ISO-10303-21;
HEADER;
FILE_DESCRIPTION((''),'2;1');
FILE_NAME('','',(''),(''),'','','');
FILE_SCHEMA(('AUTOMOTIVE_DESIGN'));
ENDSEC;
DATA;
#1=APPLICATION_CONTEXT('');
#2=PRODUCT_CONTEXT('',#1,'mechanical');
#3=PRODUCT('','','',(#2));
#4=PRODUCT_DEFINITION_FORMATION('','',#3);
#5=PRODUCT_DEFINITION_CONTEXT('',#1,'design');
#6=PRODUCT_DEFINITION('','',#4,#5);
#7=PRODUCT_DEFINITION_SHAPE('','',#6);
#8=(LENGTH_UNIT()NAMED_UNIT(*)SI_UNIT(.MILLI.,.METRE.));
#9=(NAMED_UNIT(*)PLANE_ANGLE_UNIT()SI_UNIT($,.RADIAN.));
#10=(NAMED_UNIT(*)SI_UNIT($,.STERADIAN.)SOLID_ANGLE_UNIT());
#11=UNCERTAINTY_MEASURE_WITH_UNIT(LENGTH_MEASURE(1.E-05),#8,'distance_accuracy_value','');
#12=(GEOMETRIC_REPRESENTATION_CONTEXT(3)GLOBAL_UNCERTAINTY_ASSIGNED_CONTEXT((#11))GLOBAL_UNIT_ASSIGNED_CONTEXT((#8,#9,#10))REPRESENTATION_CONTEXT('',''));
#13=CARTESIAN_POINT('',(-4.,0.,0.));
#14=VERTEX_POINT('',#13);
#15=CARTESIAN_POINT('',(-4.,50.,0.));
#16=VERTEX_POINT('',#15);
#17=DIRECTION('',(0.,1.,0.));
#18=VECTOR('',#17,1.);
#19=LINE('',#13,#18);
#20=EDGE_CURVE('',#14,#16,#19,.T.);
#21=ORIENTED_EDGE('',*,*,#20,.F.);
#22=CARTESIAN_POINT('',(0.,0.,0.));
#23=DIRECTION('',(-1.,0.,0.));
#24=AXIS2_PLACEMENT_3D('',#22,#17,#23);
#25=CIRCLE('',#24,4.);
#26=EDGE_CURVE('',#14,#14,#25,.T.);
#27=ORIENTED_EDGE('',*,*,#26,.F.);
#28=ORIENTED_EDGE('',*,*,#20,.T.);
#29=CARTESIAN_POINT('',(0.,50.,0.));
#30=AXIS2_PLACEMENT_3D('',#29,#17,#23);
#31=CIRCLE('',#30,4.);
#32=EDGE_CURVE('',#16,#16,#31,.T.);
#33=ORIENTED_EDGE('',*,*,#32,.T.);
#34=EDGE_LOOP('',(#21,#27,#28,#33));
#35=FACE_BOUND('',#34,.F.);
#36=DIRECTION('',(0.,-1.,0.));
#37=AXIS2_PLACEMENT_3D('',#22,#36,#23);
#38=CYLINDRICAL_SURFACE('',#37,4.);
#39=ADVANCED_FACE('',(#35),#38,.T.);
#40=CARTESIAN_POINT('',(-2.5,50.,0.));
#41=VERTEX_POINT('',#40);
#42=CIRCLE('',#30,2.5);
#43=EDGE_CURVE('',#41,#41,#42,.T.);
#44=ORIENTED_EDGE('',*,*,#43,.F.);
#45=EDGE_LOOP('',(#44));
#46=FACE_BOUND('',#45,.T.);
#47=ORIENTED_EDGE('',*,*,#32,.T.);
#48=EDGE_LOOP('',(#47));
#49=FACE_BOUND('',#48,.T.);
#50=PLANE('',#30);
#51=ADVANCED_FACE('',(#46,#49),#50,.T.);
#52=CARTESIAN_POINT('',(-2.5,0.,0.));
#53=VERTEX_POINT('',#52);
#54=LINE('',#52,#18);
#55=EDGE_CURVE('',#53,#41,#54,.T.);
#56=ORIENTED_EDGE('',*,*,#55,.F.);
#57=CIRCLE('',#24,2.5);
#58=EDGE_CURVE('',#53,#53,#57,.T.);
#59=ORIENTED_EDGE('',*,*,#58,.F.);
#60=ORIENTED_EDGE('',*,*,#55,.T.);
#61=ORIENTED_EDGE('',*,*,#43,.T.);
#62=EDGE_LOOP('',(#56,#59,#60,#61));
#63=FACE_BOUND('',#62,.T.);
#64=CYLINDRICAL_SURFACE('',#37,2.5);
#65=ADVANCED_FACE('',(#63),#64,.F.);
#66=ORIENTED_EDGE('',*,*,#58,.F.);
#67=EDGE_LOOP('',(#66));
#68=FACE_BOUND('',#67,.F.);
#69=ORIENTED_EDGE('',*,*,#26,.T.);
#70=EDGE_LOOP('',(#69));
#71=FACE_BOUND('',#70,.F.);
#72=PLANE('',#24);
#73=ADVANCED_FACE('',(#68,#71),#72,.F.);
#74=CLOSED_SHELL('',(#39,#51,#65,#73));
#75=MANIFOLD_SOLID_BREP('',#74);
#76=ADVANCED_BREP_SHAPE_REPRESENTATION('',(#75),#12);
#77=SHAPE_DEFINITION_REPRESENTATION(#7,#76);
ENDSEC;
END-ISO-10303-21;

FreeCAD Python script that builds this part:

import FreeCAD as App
import Part
import Sketcher
from FreeCAD import Vector

doc = App.newDocument("Part")
body = doc.addObject("PartDesign::Body", "Body")

# Sketch on XZ plane
sketch1 = doc.addObject("Sketcher::SketchObject", "Sketch")
body.addObject(sketch1)
sketch1.AttachmentSupport = (doc.XZ_Plane, [""])
sketch1.MapMode = "FlatFace"
sketch1.addGeometry(Part.Circle(Vector(0, 0, 0), Vector(0, 0, 1), 4), False)
sketch1.addGeometry(Part.Circle(Vector(0, 0, 0), Vector(0, 0, 1), 2.5), False)
sketch1.addConstraint(Sketcher.Constraint("Coincident", 0, 3, -1, 1))
sketch1.addConstraint(Sketcher.Constraint("Coincident", 1, 3, -1, 1))
sketch1.addConstraint(Sketcher.Constraint("Diameter", 1, 5.0))
sketch1.addConstraint(Sketcher.Constraint("Diameter", 0, 8.0))
pad1 = doc.addObject("PartDesign::Pad", "Pad")
body.addObject(pad1)
pad1.Profile = sketch1
pad1.Length = 50
pad1.Reversed = True

doc.recompute()
